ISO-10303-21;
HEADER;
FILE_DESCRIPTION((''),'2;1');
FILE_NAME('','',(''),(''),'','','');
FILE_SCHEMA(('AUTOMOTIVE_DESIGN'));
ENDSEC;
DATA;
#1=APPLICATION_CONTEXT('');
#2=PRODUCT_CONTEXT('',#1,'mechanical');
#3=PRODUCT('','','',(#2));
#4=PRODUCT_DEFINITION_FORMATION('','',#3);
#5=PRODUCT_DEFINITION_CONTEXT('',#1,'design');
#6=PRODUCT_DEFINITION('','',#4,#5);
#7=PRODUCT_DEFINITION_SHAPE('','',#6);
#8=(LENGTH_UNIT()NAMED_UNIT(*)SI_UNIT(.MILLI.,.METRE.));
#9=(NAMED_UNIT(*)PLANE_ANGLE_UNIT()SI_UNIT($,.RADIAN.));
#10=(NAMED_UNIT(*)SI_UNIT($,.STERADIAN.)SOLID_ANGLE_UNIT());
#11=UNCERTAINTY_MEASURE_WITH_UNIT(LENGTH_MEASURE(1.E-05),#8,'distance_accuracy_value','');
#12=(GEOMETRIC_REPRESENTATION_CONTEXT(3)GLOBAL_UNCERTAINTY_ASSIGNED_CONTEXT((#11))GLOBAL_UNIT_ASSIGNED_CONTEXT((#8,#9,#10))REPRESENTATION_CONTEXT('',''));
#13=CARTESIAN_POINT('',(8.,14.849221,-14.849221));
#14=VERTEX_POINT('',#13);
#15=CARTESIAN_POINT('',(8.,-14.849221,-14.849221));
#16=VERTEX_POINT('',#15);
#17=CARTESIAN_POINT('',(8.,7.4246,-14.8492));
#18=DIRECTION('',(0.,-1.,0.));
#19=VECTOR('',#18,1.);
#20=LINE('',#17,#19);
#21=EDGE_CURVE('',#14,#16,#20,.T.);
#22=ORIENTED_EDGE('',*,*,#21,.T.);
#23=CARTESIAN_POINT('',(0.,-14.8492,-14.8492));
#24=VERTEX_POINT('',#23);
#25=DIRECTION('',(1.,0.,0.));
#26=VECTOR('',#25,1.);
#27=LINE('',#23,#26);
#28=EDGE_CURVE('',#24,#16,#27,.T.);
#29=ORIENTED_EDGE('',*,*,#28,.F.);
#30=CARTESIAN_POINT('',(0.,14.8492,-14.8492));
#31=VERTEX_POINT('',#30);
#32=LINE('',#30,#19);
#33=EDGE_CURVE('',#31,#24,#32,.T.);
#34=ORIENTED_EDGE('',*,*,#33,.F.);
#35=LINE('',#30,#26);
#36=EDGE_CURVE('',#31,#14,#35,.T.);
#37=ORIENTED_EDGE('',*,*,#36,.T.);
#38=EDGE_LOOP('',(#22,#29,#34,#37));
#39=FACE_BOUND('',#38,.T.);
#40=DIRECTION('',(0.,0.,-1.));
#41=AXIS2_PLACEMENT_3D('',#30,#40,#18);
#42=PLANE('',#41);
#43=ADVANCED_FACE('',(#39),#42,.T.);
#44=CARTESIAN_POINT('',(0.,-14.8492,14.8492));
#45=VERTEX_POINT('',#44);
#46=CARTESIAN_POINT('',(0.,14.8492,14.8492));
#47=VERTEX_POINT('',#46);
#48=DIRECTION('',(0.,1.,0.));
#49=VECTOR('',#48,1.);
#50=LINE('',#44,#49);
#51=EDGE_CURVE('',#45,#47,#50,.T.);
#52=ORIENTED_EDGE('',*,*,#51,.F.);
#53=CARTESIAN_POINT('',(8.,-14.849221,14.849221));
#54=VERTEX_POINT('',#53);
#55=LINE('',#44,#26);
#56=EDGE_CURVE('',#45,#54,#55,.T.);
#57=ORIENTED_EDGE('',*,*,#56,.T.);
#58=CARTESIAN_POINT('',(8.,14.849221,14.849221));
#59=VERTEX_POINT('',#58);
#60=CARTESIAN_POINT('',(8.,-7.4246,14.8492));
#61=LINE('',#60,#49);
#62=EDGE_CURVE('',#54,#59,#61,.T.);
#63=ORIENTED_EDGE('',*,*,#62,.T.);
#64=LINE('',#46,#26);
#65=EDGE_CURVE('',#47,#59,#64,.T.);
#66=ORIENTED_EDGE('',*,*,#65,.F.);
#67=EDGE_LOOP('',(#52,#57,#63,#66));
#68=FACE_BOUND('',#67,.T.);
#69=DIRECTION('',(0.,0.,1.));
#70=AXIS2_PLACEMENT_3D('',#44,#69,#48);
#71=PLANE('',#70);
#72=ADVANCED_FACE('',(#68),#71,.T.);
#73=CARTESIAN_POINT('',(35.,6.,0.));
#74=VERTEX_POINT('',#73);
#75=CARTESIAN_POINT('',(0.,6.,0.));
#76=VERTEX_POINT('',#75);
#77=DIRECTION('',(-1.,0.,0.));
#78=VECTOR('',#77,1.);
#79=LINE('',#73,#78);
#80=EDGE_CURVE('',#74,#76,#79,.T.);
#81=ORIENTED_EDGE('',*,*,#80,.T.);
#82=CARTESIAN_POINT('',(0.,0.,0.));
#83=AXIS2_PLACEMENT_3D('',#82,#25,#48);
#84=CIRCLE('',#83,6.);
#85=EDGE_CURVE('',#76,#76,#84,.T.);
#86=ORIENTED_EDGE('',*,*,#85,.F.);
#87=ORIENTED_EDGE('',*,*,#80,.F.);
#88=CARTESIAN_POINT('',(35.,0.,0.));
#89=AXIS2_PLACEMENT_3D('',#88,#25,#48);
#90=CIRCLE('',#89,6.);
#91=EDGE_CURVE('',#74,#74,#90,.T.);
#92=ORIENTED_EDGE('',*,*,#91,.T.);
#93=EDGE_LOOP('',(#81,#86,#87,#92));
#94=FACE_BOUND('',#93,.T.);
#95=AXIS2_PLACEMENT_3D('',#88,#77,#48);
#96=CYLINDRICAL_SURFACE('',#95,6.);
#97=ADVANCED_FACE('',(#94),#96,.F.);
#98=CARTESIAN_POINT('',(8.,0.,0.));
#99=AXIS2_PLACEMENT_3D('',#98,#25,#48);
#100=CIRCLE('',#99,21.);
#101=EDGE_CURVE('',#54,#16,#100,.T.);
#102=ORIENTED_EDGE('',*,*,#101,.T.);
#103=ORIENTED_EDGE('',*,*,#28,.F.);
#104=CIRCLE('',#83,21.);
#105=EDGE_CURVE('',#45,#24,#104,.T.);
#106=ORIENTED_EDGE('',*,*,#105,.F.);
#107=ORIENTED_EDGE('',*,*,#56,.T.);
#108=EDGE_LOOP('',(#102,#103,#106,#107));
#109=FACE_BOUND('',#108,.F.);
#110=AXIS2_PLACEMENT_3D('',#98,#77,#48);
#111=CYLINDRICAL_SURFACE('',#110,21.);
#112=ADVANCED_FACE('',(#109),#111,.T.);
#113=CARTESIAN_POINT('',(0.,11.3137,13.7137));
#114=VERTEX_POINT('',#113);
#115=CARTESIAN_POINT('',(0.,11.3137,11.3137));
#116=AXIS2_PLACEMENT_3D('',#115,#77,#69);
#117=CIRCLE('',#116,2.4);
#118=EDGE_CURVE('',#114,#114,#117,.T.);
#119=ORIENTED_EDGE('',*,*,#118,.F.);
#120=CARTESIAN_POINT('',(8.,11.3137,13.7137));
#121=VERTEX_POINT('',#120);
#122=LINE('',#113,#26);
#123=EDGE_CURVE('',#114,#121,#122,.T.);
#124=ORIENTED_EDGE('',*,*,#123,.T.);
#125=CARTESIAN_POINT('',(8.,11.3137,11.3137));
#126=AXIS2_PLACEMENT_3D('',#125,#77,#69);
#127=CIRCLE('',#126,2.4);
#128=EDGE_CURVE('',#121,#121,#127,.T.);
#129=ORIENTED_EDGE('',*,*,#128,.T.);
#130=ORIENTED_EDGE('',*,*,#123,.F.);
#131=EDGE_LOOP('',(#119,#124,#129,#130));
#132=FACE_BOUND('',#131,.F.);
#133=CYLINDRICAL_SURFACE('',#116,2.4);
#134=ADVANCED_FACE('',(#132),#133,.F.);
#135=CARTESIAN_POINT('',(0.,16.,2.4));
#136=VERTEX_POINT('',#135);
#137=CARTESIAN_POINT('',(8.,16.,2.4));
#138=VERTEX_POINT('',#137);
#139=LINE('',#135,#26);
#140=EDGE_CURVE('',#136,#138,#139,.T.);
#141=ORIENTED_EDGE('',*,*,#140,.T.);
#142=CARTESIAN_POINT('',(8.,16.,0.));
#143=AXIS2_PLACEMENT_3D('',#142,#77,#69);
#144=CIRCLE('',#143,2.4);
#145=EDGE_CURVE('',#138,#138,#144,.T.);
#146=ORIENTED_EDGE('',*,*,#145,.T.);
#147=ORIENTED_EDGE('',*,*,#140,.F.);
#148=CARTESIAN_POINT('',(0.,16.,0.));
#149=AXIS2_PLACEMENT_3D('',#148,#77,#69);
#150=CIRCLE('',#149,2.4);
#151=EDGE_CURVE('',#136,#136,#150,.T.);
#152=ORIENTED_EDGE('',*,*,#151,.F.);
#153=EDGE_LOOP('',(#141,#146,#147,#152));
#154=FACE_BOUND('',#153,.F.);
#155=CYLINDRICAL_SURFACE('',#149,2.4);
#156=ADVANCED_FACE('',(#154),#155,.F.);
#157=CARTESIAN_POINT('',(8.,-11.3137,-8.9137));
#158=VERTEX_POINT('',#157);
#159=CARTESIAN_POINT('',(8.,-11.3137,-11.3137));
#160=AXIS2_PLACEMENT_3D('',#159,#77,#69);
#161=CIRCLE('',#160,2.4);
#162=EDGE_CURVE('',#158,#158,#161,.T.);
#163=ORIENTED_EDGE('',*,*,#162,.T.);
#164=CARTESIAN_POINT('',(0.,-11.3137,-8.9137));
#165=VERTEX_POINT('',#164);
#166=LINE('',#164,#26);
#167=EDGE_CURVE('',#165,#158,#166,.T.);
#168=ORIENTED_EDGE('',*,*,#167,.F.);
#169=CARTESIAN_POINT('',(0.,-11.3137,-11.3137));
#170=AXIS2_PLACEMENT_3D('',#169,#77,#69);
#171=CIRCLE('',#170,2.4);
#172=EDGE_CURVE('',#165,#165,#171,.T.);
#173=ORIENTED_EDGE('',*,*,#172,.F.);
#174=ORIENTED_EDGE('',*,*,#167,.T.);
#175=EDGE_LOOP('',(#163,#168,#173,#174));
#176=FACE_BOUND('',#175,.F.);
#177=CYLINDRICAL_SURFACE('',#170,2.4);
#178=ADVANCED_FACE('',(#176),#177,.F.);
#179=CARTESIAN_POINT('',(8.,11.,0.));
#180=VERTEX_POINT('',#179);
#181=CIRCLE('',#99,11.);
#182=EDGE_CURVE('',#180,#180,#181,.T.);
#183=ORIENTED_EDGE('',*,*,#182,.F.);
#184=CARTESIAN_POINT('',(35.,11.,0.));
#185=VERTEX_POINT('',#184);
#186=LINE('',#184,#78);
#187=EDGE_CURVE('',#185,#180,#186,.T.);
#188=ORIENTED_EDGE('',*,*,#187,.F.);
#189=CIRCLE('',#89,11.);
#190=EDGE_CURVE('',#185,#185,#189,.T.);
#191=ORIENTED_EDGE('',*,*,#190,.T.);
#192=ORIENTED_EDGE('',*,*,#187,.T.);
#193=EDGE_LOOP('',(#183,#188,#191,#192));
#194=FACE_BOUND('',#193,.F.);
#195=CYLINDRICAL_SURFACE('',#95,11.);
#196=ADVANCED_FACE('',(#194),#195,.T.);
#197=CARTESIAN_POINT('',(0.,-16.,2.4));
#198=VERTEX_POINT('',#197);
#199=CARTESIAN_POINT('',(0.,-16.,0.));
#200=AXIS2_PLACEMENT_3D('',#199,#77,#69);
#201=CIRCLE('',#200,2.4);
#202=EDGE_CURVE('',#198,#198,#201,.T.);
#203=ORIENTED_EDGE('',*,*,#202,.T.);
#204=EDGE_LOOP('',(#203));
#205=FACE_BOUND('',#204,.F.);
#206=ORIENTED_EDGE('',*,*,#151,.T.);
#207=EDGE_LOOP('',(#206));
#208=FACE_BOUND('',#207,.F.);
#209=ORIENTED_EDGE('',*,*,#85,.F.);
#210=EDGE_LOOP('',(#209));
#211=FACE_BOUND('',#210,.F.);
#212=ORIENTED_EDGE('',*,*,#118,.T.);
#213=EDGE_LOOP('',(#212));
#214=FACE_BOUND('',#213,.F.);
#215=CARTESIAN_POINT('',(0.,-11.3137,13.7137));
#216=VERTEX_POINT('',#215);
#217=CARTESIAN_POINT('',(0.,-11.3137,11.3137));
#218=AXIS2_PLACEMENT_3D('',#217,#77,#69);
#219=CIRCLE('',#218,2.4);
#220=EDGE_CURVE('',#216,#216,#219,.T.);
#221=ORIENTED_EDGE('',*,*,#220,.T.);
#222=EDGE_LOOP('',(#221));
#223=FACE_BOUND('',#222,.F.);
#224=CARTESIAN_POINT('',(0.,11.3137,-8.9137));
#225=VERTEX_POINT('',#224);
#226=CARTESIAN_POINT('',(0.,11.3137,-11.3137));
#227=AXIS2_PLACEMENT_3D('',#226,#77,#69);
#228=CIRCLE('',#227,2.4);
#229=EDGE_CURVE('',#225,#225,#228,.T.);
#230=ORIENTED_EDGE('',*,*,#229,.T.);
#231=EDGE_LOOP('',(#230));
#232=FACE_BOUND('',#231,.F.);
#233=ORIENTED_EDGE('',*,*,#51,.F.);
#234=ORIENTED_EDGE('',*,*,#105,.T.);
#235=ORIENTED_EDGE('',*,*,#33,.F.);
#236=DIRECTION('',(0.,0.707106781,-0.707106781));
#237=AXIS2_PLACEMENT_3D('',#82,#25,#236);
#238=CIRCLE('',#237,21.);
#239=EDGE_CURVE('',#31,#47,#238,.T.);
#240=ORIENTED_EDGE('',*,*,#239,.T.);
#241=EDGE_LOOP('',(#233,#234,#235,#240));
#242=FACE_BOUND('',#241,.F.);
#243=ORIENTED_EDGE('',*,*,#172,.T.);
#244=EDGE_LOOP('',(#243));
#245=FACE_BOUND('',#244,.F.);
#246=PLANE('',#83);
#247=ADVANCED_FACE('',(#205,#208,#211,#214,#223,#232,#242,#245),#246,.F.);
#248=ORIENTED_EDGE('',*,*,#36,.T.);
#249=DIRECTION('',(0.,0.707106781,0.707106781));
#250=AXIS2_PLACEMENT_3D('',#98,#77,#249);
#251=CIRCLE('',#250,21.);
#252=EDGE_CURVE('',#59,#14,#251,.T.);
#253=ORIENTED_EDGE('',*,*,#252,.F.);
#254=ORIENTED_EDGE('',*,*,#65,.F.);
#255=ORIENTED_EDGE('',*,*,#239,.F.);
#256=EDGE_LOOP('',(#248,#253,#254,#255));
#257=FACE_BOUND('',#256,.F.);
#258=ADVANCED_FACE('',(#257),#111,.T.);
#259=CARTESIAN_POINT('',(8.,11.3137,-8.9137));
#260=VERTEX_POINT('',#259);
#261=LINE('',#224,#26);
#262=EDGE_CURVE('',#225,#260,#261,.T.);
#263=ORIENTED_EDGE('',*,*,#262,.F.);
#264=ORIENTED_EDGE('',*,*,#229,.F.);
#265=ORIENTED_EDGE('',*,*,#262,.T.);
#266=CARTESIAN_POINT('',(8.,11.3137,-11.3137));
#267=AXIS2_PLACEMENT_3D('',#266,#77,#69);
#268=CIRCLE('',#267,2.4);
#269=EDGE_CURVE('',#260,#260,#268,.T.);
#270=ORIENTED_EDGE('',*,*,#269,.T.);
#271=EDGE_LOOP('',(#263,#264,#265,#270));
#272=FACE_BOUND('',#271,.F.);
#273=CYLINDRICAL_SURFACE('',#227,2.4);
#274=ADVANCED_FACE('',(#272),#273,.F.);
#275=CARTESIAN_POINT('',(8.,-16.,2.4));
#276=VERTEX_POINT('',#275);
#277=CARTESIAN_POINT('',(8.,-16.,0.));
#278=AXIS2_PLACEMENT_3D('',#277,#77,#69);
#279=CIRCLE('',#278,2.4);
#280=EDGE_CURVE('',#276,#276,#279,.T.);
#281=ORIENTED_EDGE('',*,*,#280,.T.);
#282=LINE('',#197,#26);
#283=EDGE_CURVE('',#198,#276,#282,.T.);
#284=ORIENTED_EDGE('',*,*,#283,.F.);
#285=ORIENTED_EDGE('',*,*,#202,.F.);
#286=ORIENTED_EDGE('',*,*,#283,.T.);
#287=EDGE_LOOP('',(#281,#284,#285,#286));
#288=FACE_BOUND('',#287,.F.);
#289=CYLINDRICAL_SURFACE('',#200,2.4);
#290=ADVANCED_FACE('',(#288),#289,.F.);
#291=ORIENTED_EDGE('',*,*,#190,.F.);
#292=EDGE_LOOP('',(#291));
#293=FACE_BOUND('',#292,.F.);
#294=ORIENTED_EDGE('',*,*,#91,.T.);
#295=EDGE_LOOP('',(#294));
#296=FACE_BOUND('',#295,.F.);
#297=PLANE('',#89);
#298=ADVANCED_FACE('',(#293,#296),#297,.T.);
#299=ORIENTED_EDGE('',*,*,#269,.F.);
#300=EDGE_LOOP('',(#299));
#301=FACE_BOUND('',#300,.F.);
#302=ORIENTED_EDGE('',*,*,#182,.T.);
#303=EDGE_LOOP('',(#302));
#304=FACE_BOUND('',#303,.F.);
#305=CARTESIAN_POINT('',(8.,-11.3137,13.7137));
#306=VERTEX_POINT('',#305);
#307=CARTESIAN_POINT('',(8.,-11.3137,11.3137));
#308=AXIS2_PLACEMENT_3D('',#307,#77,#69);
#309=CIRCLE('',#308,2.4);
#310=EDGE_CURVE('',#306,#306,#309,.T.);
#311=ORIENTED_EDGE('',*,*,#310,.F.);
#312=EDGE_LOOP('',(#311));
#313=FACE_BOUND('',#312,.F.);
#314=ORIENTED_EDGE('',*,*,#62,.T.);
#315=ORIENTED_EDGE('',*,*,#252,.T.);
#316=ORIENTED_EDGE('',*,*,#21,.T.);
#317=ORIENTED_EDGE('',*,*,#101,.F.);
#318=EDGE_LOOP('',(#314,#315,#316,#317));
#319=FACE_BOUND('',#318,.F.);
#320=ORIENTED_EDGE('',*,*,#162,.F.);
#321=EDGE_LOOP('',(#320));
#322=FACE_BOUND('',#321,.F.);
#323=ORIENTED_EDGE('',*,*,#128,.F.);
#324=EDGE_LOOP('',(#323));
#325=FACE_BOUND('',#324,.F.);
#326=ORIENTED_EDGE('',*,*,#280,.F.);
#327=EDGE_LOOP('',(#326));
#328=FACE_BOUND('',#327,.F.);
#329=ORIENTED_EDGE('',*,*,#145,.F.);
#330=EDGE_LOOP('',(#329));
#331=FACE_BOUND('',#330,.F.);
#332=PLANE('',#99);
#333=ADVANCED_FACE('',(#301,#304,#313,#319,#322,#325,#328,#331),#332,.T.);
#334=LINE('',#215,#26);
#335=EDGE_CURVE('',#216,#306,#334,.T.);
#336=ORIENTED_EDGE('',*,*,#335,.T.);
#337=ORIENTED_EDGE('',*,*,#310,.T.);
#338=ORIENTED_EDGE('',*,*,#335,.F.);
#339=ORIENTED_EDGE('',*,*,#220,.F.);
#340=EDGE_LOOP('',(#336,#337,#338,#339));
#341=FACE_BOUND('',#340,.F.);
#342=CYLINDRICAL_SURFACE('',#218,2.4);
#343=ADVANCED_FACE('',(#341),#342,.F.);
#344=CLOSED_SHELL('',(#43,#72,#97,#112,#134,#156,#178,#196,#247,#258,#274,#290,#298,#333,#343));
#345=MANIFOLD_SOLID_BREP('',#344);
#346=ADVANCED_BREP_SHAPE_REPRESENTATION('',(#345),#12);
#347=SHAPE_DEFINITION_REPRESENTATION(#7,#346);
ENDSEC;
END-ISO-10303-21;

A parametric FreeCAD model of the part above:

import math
import FreeCAD as App
import Part
import Sketcher
from FreeCAD import Vector
Q = App.Units.Quantity


def add_polygon(sketch, points):
    """Adds a closed chain of lines whose ends are joined by coincident constraints."""
    first, n = sketch.GeometryCount, len(points)
    for a, b in zip(points, points[1:] + points[:1]):
        sketch.addGeometry(Part.LineSegment(App.Vector(*a, 0), App.Vector(*b, 0)), False)
    for i in range(n):
        sketch.addConstraint(Sketcher.Constraint("Coincident", first + i, 2, first + (i + 1) % n, 1))

doc = App.newDocument("Part")
body = doc.addObject("PartDesign::Body", "Body")

# Sketch on XY plane
sketch1 = body.newObject("Sketcher::SketchObject", "Sketch")
sketch1.AttachmentSupport = (doc.getObject("XY_Plane"), [""])
sketch1.MapMode = "FlatFace"
add_polygon(sketch1, [(8, 21), (0, 21), (0, 6), (35, 6), (35, 11), (8, 11)])  # lines 0-5
sketch1.addConstraint(Sketcher.Constraint("Horizontal", 0))
sketch1.addConstraint(Sketcher.Constraint("Vertical", 1))
sketch1.addConstraint(Sketcher.Constraint("Horizontal", 2))
sketch1.addConstraint(Sketcher.Constraint("Vertical", 3))
sketch1.addConstraint(Sketcher.Constraint("Horizontal", 4))
sketch1.addConstraint(Sketcher.Constraint("Vertical", 5))
sketch1.addConstraint(Sketcher.Constraint("PointOnObject", 0, 2, -2))
sketch1.addConstraint(Sketcher.Constraint("DistanceX", 0, 2, 0, 1, Q("8 mm")))
sketch1.addConstraint(Sketcher.Constraint("DistanceX", 2, 1, 2, 2, Q("35 mm")))
sketch1.addConstraint(Sketcher.Constraint("DistanceY", -1, 1, 0, 2, Q("21 mm")))
sketch1.addConstraint(Sketcher.Constraint("DistanceY", -1, 1, 1, 2, Q("6 mm")))
sketch1.addConstraint(Sketcher.Constraint("DistanceY", -1, 1, 3, 2, Q("11 mm")))
revolution = body.newObject("PartDesign::Revolution", "Revolution")
revolution.Profile = sketch1
revolution.ReferenceAxis = (sketch1, ["H_Axis"])
revolution.Angle = 360

# Sketch on YZ plane
sketch2 = body.newObject("Sketcher::SketchObject", "Sketch001")
sketch2.AttachmentSupport = (doc.getObject("YZ_Plane"), [""])
sketch2.MapMode = "FlatFace"
sketch2.addGeometry(Part.ArcOfCircle(Part.Circle(Vector(0, 0, 0), Vector(0, 0, 1), 21), math.radians(45), math.radians(135)), False)
sketch2.addGeometry(Part.LineSegment(Vector(-14.8, 14.8, 0), Vector(14.8, 14.8, 0)), False)
sketch2.addGeometry(Part.LineSegment(Vector(-14.8, -14.8, 0), Vector(14.8, -14.8, 0)), False)
sketch2.addGeometry(Part.ArcOfCircle(Part.Circle(Vector(0, 0, 0), Vector(0, 0, 1), 21), math.radians(-135), math.radians(-45)), False)
sketch2.addGeometry(Part.Circle(Vector(16, 0, 0), Vector(0, 0, 1), 2.4), False)
sketch2.addGeometry(Part.Circle(Vector(11.3, 11.3, 0), Vector(0, 0, 1), 2.4), False)
sketch2.addGeometry(Part.Circle(Vector(-11.3, 11.3, 0), Vector(0, 0, 1), 2.4), False)
sketch2.addGeometry(Part.Circle(Vector(11.3, -11.3, 0), Vector(0, 0, 1), 2.4), False)
sketch2.addGeometry(Part.Circle(Vector(-16, 0, 0), Vector(0, 0, 1), 2.4), False)
sketch2.addGeometry(Part.Circle(Vector(-11.3, -11.3, 0), Vector(0, 0, 1), 2.4), False)
sketch2.addConstraint(Sketcher.Constraint("Coincident", 0, 1, 1, 2))
sketch2.addConstraint(Sketcher.Constraint("Coincident", 1, 1, 0, 2))
sketch2.addConstraint(Sketcher.Constraint("Coincident", 2, 1, 3, 1))
sketch2.addConstraint(Sketcher.Constraint("Coincident", 3, 2, 2, 2))
sketch2.addConstraint(Sketcher.Constraint("Horizontal", 1))
sketch2.addConstraint(Sketcher.Constraint("Horizontal", 2))
sketch2.addConstraint(Sketcher.Constraint("Coincident", 0, 3, -1, 1))
sketch2.addConstraint(Sketcher.Constraint("Coincident", 3, 3, -1, 1))
sketch2.addConstraint(Sketcher.Constraint("Equal", 0, 3))
sketch2.addConstraint(Sketcher.Constraint("Equal", 4, 5))
sketch2.addConstraint(Sketcher.Constraint("Equal", 5, 6))
sketch2.addConstraint(Sketcher.Constraint("Equal", 6, 7))
sketch2.addConstraint(Sketcher.Constraint("Equal", 7, 8))
sketch2.addConstraint(Sketcher.Constraint("Equal", 8, 9))
sketch2.addConstraint(Sketcher.Constraint("Symmetric", 6, 3, 7, 3, -1, 1))
sketch2.addConstraint(Sketcher.Constraint("Symmetric", 4, 3, 8, 3, -1, 1))
sketch2.addConstraint(Sketcher.Constraint("Symmetric", 5, 3, 9, 3, -1, 1))
sketch2.addConstraint(Sketcher.Constraint("Symmetric", 5, 3, 6, 3, -2))
sketch2.addConstraint(Sketcher.Constraint("PointOnObject", 4, 3, -1))
sketch2.addConstraint(Sketcher.Constraint("Vertical", 1, 1, 2, 1))
sketch2.addConstraint(Sketcher.Constraint("Diameter", 4, Q("4.8 mm")))
sketch2.addConstraint(Sketcher.Constraint("Radius", 0, Q("21 mm")))
sketch2.addConstraint(Sketcher.Constraint("DistanceX", -1, 1, 4, 3, Q("16 mm")))
sketch2.addConstraint(Sketcher.Constraint("DistanceX", 1, 1, 1, 2, Q("29.6984 mm")))
sketch2.addConstraint(Sketcher.Constraint("DistanceY", 7, 3, 0, 1, Q("26.163 mm")))
sketch2.addConstraint(Sketcher.Constraint("DistanceX", 1, 1, 5, 3, Q("26.163 mm")))
pocket1 = body.newObject("PartDesign::Pocket", "Pocket")
pocket1.Profile = sketch2
pocket1.Length = 10
pocket1.Reversed = True

doc.recompute()
